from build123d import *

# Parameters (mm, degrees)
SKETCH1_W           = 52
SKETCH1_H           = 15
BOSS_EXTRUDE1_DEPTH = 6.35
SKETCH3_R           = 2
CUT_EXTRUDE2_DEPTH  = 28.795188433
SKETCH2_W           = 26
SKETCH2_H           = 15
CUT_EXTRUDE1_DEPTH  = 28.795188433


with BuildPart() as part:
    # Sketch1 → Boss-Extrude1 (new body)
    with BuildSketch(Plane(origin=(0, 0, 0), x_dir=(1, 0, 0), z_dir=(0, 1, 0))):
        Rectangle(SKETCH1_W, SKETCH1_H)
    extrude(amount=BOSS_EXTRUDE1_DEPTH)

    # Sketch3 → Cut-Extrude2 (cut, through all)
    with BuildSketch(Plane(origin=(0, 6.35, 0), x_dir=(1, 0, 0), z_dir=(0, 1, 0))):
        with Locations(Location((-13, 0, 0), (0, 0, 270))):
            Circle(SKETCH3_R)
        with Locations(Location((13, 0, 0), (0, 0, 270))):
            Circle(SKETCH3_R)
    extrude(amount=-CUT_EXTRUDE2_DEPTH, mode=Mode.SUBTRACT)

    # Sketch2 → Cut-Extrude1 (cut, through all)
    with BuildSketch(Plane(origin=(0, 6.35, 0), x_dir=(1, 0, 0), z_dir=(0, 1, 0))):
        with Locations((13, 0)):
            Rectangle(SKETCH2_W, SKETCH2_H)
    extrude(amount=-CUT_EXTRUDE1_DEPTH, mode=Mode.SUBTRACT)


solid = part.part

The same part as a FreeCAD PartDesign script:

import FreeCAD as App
import Part
import Sketcher

V = App.Vector


def add_polygon(sketch, points):
    """Adds a closed chain of lines whose ends are joined by coincident constraints."""
    first, n = sketch.GeometryCount, len(points)
    for a, b in zip(points, points[1:] + points[:1]):
        sketch.addGeometry(Part.LineSegment(App.Vector(*a, 0), App.Vector(*b, 0)), False)
    for i in range(n):
        sketch.addConstraint(Sketcher.Constraint("Coincident", first + i, 2, first + (i + 1) % n, 1))

doc = App.newDocument("Part")
body = doc.addObject("PartDesign::Body", "Body")

# Sketch on XZ plane
sketch1 = doc.addObject("Sketcher::SketchObject", "Sketch")
body.addObject(sketch1)
sketch1.AttachmentSupport = (doc.XZ_Plane, [""])
sketch1.MapMode = "FlatFace"
add_polygon(sketch1, [(-26, -8), (-26, 8), (26, 8), (26, -8)])  # lines 0-3
sketch1.addConstraint([
    Sketcher.Constraint("Vertical", 0),
    Sketcher.Constraint("Horizontal", 1),
    Sketcher.Constraint("Vertical", 2),
    Sketcher.Constraint("Horizontal", 3),
    Sketcher.Constraint("Symmetric", 0, 2, 2, 2, -1, 1),
    Sketcher.Constraint("DistanceX", 1, 1, 1, 2, 52.0),
    Sketcher.Constraint("DistanceY", 0, 1, 0, 2, 15.0),
])
pad1 = doc.addObject("PartDesign::Pad", "Pad")
body.addObject(pad1)
pad1.Profile = sketch1
pad1.Length = 6.35
pad1.Reversed = True

# Sketch on XZ plane
sketch2 = doc.addObject("Sketcher::SketchObject", "Sketch001")
body.addObject(sketch2)
sketch2.AttachmentSupport = (doc.XZ_Plane, [""])
sketch2.MapMode = "FlatFace"
sketch2.AttachmentOffset = App.Placement(V(0, 0, -6.35), App.Rotation())
sketch2.addGeometry([
    Part.Circle(V(-13, 0, 0), V(0, 0, 1), 2),
    Part.Circle(V(13, 0, 0), V(0, 0, 1), 2),
], False)
sketch2.addConstraint([
    Sketcher.Constraint("Equal", 0, 1),
    Sketcher.Constraint("Symmetric", 0, 3, 1, 3, -1, 1),
    Sketcher.Constraint("PointOnObject", 0, 3, -1),
    Sketcher.Constraint("Diameter", 0, 4.0),
    Sketcher.Constraint("DistanceX", 0, 3, -1, 1, 13.0),
])
pocket1 = doc.addObject("PartDesign::Pocket", "Pocket")
body.addObject(pocket1)
pocket1.Profile = sketch2
pocket1.Type = "ThroughAll"
pocket1.Reversed = True

# Sketch on XZ plane
sketch3 = doc.addObject("Sketcher::SketchObject", "Sketch002")
body.addObject(sketch3)
sketch3.AttachmentSupport = (doc.XZ_Plane, [""])
sketch3.MapMode = "FlatFace"
sketch3.AttachmentOffset = App.Placement(V(0, 0, -6.35), App.Rotation())
add_polygon(sketch3, [(0, -8), (0, 8), (26, 8), (26, -8)])  # lines 0-3
sketch3.addConstraint([
    Sketcher.Constraint("Vertical", 0),
    Sketcher.Constraint("Horizontal", 1),
    Sketcher.Constraint("Vertical", 2),
    Sketcher.Constraint("Horizontal", 3),
    Sketcher.Constraint("Symmetric", 0, 2, 3, 2, -1, 1),
    Sketcher.Constraint("DistanceX", 1, 1, 1, 2, 26.0),
    Sketcher.Constraint("DistanceY", 0, 1, 0, 2, 15.0),
])
pocket2 = doc.addObject("PartDesign::Pocket", "Pocket001")
body.addObject(pocket2)
pocket2.Profile = sketch3
pocket2.Type = "ThroughAll"
pocket2.Reversed = True

doc.recompute()
